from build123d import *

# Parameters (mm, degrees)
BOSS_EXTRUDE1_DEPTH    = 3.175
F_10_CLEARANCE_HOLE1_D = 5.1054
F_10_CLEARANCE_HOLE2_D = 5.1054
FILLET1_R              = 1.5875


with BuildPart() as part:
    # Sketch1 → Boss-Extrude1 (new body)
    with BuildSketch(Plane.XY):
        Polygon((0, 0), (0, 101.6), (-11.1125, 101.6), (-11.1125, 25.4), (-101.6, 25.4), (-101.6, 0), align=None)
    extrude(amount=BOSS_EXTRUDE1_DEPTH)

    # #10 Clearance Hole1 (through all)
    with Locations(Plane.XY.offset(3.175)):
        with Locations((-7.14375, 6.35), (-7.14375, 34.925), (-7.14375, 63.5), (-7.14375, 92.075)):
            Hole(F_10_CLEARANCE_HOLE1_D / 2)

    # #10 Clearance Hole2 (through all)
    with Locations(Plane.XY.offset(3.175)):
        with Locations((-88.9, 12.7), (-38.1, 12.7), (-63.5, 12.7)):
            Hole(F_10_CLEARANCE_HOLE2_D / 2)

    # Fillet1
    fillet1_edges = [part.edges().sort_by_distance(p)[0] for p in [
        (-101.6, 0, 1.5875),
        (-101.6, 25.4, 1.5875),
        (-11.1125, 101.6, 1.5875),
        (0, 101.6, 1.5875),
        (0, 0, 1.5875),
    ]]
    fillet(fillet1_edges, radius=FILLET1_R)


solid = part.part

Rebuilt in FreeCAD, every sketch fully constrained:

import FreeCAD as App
import Part
import Sketcher
Q = App.Units.Quantity


def edges_at(feature, points):
    """Names of the edges that pass closest to the given points."""
    edges = feature.Shape.Edges
    near = lambda p: min(range(len(edges)), key=lambda i: edges[i].distToShape(Part.Vertex(*p))[0])
    return sorted({f"Edge{near(p) + 1}" for p in points})


def add_polygon(sketch, points):
    """Adds a closed chain of lines whose ends are joined by coincident constraints."""
    first, n = sketch.GeometryCount, len(points)
    for a, b in zip(points, points[1:] + points[:1]):
        sketch.addGeometry(Part.LineSegment(App.Vector(*a, 0), App.Vector(*b, 0)), False)
    for i in range(n):
        sketch.addConstraint(Sketcher.Constraint("Coincident", first + i, 2, first + (i + 1) % n, 1))

doc = App.newDocument("Part")
params = doc.addObject("Spreadsheet::Sheet", "Params")
for row, (alias, value) in enumerate([
    ("sketch1_width", "4 in"),
    ("sketch1_height", "3 in"),
    ("sketch1_width2", "0.4375 in"),
    ("pad1_length", "0.125 in"),
    ("sketch2_diameter", "0.201 in"),
    ("hole_diameter", "0.201 in"),
    ("sketch3_diameter", "0.201 in"),
    ("hole2_diameter", "0.201 in"),
    ("fillet_radius", "0.0625 in"),
], start=1):
    params.set(f"A{row}", alias)
    params.set(f"B{row}", "=" + value)
    params.setAlias(f"B{row}", alias)

body = doc.addObject("PartDesign::Body", "Body")

sketch1 = doc.addObject("Sketcher::SketchObject", "Sketch")
body.addObject(sketch1)
sketch1.AttachmentSupport = (doc.XY_Plane, [""])
sketch1.MapMode = "FlatFace"
add_polygon(sketch1, [(0, 0), (0, 102), (-11, 102), (-11, 25), (-102, 25), (-102, 0)])
sketch1.addConstraint(Sketcher.Constraint("Vertical", 0))
sketch1.addConstraint(Sketcher.Constraint("Horizontal", 1))
sketch1.addConstraint(Sketcher.Constraint("Vertical", 2))
sketch1.addConstraint(Sketcher.Constraint("Horizontal", 3))
sketch1.addConstraint(Sketcher.Constraint("Vertical", 4))
sketch1.addConstraint(Sketcher.Constraint("Horizontal", 5))
sketch1.addConstraint(Sketcher.Constraint("Coincident", 5, 2, -1, 1))
sketch1.addConstraint(Sketcher.Constraint("Equal", 5, 0))
sketch1.addConstraint(Sketcher.Constraint("DistanceX", 5, 1, 5, 2, Q("4 in")))
sketch1.addConstraint(Sketcher.Constraint("DistanceY", 2, 2, 2, 1, Q("3 in")))
sketch1.addConstraint(Sketcher.Constraint("DistanceX", 1, 2, 1, 1, Q("0.4375 in")))
sketch1.setExpression("Constraints[14]", "Params.sketch1_width")
sketch1.setExpression("Constraints[15]", "Params.sketch1_height")
sketch1.setExpression("Constraints[16]", "Params.sketch1_width2")
pad1 = doc.addObject("PartDesign::Pad", "Pad")
body.addObject(pad1)
pad1.Profile = sketch1
pad1.setExpression("Length", "Params.pad1_length")

sketch2 = doc.addObject("Sketcher::SketchObject", "Sketch001")
body.addObject(sketch2)
sketch2.AttachmentSupport = (doc.XY_Plane, [""])
sketch2.MapMode = "FlatFace"
sketch2.AttachmentOffset = App.Placement(App.Vector(0, 0, 0.125 * 25.4), App.Rotation())
sketch2.addGeometry(Part.Circle(App.Vector(-7.1, 6.3, 0), App.Vector(0, 0, 1), 2.6), False)
sketch2.addGeometry(Part.Circle(App.Vector(-7.1, 34.9, 0), App.Vector(0, 0, 1), 2.6), False)
sketch2.addGeometry(Part.Circle(App.Vector(-7.1, 63.5, 0), App.Vector(0, 0, 1), 2.6), False)
sketch2.addGeometry(Part.Circle(App.Vector(-7.1, 92.1, 0), App.Vector(0, 0, 1), 2.6), False)
sketch2.addConstraint(Sketcher.Constraint("Equal", 0, 1))
sketch2.addConstraint(Sketcher.Constraint("Equal", 1, 2))
sketch2.addConstraint(Sketcher.Constraint("Equal", 2, 3))
sketch2.addConstraint(Sketcher.Constraint("Vertical", 0, 3, 1, 3))
sketch2.addConstraint(Sketcher.Constraint("Vertical", 1, 3, 2, 3))
sketch2.addConstraint(Sketcher.Constraint("Vertical", 2, 3, 3, 3))
sketch2.addConstraint(Sketcher.Constraint("Diameter", 0, Q("0.201 in")))
sketch2.addConstraint(Sketcher.Constraint("DistanceY", -1, 1, 2, 3, Q("2.5 in")))
sketch2.addConstraint(Sketcher.Constraint("DistanceY", -1, 1, 0, 3, Q("0.25 in")))
sketch2.addConstraint(Sketcher.Constraint("DistanceY", 1, 3, 3, 3, Q("2.25 in")))
sketch2.addConstraint(Sketcher.Constraint("DistanceX", 0, 3, -1, 1, Q("0.28125 in")))
sketch2.addConstraint(Sketcher.Constraint("DistanceY", -1, 1, 1, 3, Q("1.375 in")))
sketch2.setExpression("Constraints[6]", "Params.sketch2_diameter")
doc.recompute()
hole = doc.addObject("PartDesign::Hole", "Hole")
body.addObject(hole)
hole.Profile = sketch2
hole.ThreadType = "None"
hole.setExpression("Diameter", "Params.hole_diameter")
hole.DepthType = "ThroughAll"

sketch3 = doc.addObject("Sketcher::SketchObject", "Sketch002")
body.addObject(sketch3)
sketch3.AttachmentSupport = (doc.XY_Plane, [""])
sketch3.MapMode = "FlatFace"
sketch3.AttachmentOffset = App.Placement(App.Vector(0, 0, 0.125 * 25.4), App.Rotation())
sketch3.addGeometry(Part.Circle(App.Vector(-88.9, 12.7, 0), App.Vector(0, 0, 1), 2.6), False)
sketch3.addGeometry(Part.Circle(App.Vector(-38.1, 12.7, 0), App.Vector(0, 0, 1), 2.6), False)
sketch3.addGeometry(Part.Circle(App.Vector(-63.5, 12.7, 0), App.Vector(0, 0, 1), 2.6), False)
sketch3.addConstraint(Sketcher.Constraint("Equal", 0, 1))
sketch3.addConstraint(Sketcher.Constraint("Equal", 1, 2))
sketch3.addConstraint(Sketcher.Constraint("Horizontal", 0, 3, 1, 3))
sketch3.addConstraint(Sketcher.Constraint("Horizontal", 1, 3, 2, 3))
sketch3.addConstraint(Sketcher.Constraint("Diameter", 0, Q("0.201 in")))
sketch3.addConstraint(Sketcher.Constraint("DistanceX", 0, 3, 1, 3, Q("2 in")))
sketch3.addConstraint(Sketcher.Constraint("DistanceX", 2, 3, 1, 3, Q("1 in")))
sketch3.addConstraint(Sketcher.Constraint("DistanceX", 0, 3, -1, 1, Q("3.5 in")))
sketch3.addConstraint(Sketcher.Constraint("DistanceY", -1, 1, 0, 3, Q("0.5 in")))
sketch3.setExpression("Constraints[4]", "Params.sketch3_diameter")
doc.recompute()
hole2 = doc.addObject("PartDesign::Hole", "Hole001")
body.addObject(hole2)
hole2.Profile = sketch3
hole2.ThreadType = "None"
hole2.setExpression("Diameter", "Params.hole2_diameter")
hole2.DepthType = "ThroughAll"
doc.recompute()

fillet = doc.addObject("PartDesign::Fillet", "Fillet")
body.addObject(fillet)
fillet.Base = (hole2, edges_at(hole2, [
    (-101.6, 0, 1.587),
    (-101.6, 25.4, 1.587),
    (-11.113, 101.6, 1.587),
    (0, 101.6, 1.587),
    (0, 0, 1.587),
]))
fillet.setExpression("Radius", "Params.fillet_radius")

doc.recompute()
